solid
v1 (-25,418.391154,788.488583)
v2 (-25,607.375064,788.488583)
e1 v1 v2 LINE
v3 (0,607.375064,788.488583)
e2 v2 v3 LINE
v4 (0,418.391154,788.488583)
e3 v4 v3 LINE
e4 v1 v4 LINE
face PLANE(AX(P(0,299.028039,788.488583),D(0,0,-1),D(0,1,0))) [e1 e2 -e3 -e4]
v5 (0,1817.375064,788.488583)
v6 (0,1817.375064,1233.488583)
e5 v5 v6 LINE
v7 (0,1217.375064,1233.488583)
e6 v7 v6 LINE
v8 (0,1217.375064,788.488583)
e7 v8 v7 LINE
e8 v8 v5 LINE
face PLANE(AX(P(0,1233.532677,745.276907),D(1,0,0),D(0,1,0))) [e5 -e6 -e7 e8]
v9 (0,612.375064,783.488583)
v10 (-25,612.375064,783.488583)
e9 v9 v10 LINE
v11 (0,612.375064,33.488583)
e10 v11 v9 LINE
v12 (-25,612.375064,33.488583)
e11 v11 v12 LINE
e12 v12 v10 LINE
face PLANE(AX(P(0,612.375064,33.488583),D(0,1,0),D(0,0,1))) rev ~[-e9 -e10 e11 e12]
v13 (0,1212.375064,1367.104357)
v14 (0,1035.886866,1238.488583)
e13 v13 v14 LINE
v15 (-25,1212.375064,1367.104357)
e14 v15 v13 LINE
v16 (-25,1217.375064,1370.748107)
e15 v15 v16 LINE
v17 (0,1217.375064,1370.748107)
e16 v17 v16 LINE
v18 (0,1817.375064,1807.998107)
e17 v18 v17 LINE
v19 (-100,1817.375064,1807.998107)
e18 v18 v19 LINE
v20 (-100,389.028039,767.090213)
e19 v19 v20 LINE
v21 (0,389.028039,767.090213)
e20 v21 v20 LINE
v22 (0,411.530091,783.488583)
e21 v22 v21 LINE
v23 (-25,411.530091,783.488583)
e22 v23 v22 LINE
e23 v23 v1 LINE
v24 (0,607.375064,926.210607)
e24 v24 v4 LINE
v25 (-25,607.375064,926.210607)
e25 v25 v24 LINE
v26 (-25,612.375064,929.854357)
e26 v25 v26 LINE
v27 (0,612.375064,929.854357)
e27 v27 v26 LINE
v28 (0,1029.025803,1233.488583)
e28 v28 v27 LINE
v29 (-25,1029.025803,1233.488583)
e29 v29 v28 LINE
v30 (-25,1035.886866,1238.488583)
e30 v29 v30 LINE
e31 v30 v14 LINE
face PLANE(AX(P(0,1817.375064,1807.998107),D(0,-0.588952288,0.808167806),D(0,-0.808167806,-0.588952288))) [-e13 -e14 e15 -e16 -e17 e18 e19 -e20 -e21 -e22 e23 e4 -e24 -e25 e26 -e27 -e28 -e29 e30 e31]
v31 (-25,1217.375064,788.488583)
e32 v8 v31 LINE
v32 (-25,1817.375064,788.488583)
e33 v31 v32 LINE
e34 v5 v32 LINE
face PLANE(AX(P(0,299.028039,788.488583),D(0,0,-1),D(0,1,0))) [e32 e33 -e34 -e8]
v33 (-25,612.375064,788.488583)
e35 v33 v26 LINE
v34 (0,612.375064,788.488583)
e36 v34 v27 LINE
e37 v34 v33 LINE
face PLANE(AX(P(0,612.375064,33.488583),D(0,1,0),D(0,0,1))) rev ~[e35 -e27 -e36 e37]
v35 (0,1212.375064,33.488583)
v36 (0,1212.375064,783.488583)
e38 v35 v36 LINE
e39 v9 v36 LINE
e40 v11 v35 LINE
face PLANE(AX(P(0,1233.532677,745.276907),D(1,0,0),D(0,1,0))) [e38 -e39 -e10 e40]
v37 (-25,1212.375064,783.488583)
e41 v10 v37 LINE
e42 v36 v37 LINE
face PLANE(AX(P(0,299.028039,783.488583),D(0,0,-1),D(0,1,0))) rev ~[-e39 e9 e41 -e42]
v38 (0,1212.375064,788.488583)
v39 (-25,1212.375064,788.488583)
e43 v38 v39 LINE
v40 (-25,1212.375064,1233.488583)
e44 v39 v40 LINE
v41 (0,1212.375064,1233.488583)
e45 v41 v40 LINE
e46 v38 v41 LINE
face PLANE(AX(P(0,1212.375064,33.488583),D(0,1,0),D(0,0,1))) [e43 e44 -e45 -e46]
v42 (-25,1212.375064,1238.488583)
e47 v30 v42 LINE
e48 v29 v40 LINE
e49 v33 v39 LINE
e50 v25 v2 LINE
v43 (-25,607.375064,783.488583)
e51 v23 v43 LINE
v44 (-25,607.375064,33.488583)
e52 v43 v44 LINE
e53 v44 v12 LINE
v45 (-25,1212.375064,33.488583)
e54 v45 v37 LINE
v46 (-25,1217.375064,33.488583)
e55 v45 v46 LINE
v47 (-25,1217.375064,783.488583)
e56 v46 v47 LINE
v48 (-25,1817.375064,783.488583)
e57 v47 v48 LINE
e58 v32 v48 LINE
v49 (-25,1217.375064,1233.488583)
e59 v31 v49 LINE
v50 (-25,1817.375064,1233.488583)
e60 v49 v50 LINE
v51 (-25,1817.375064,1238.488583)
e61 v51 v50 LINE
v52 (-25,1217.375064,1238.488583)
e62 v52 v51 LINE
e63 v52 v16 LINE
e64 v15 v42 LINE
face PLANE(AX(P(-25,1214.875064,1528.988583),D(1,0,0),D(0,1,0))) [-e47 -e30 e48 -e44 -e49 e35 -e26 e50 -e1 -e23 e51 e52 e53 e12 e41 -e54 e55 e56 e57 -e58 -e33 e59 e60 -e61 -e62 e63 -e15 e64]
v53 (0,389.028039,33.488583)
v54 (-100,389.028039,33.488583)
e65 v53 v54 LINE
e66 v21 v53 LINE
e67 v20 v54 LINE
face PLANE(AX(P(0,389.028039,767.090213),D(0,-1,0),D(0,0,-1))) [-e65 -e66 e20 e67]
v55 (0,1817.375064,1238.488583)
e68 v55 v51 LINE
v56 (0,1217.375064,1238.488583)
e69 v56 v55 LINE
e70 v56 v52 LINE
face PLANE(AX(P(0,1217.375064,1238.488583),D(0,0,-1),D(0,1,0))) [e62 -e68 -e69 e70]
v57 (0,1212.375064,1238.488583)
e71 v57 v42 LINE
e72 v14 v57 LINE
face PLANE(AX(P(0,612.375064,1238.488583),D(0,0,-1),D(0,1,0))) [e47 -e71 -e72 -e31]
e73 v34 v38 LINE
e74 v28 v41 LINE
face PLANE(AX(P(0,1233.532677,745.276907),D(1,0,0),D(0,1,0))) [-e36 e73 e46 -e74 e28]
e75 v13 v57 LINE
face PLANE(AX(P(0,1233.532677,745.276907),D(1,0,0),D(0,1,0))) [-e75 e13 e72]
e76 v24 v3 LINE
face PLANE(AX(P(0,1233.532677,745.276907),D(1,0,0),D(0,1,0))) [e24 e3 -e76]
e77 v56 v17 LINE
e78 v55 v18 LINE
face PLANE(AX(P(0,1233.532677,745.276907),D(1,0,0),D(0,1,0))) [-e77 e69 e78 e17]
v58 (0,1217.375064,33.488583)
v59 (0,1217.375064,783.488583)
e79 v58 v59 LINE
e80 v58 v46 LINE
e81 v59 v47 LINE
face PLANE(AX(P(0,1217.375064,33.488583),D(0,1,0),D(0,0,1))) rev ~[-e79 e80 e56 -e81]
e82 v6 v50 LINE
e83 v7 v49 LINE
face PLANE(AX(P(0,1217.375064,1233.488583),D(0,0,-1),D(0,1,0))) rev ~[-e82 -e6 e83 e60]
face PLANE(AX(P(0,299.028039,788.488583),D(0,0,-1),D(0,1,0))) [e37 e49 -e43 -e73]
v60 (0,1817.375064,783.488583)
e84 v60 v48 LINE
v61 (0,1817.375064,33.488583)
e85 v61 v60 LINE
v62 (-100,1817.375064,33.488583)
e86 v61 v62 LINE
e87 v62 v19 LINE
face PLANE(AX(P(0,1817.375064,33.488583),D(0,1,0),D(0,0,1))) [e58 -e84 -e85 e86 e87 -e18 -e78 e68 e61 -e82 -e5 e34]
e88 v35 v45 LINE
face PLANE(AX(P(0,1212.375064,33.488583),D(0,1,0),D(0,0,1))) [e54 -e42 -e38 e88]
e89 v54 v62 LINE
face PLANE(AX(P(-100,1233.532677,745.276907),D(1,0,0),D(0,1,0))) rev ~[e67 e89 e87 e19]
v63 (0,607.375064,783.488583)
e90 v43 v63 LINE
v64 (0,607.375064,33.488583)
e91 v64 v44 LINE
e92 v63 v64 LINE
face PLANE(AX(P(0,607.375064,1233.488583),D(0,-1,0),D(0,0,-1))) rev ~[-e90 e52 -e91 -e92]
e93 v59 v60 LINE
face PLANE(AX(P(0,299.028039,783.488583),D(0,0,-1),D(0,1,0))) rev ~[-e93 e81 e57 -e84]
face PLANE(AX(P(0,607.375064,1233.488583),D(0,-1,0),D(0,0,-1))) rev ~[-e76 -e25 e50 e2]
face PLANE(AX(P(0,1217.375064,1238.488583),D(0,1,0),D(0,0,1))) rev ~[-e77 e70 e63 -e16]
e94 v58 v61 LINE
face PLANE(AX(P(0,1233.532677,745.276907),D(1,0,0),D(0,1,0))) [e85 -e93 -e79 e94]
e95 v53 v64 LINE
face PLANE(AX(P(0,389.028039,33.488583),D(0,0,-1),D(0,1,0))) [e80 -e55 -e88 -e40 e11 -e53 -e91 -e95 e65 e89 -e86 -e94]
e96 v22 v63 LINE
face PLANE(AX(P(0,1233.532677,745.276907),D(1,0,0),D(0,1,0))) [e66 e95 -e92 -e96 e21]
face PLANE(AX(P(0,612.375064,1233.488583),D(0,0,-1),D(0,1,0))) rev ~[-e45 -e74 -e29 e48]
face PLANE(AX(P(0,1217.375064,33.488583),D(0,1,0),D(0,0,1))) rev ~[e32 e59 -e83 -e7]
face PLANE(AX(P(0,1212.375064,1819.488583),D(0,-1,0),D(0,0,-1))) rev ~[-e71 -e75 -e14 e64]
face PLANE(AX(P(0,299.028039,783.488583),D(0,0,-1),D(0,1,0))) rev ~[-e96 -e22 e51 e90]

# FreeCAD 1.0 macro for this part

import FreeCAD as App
import Part
import Sketcher

V = App.Vector
Q = App.Units.Quantity

doc = App.newDocument("Part")
body = doc.addObject("PartDesign::Body", "Body")

sketch1 = body.newObject("Sketcher::SketchObject", "Sketch")
sketch1.AttachmentSupport = (doc.getObject("YZ_Plane"), [""])
sketch1.MapMode = "FlatFace"
sketch1.addGeometry([
    Part.LineSegment(V(389, 767, 0), V(389, 33, 0)),
    Part.LineSegment(V(389, 33, 0), V(1817, 33, 0)),
    Part.LineSegment(V(1817, 33, 0), V(1817, 1808, 0)),
    Part.LineSegment(V(1817, 1808, 0), V(389, 767, 0)),
], False)
sketch1.addConstraint([
    Sketcher.Constraint("Coincident", 0, 2, 1, 1),
    Sketcher.Constraint("Coincident", 1, 2, 2, 1),
    Sketcher.Constraint("Coincident", 2, 2, 3, 1),
    Sketcher.Constraint("Coincident", 3, 2, 0, 1),
    Sketcher.Constraint("Vertical", 0),
    Sketcher.Constraint("Horizontal", 1),
    Sketcher.Constraint("Vertical", 2),
    Sketcher.Constraint("DistanceY", 0, 2, 0, 1, Q("733.60163 mm")),
    Sketcher.Constraint("DistanceX", 1, 1, 1, 2, Q("1428.347025 mm")),
    Sketcher.Constraint("DistanceY", 2, 1, 2, 2, Q("1774.509524 mm")),
    Sketcher.Constraint("DistanceX", -1, 1, 0, 2, Q("389.028039 mm")),
    Sketcher.Constraint("DistanceY", -1, 1, 0, 2, Q("33.488583 mm")),
])
pad1 = body.newObject("PartDesign::Pad", "Pad")
pad1.Profile = sketch1
pad1.Length = 100
pad1.Reversed = True

sketch2 = body.newObject("Sketcher::SketchObject", "Sketch001")
sketch2.AttachmentSupport = (doc.getObject("YZ_Plane"), [""])
sketch2.MapMode = "FlatFace"
sketch2.addGeometry([
    Part.LineSegment(V(1212, 1819, 0), V(1212, 1238, 0)),
    Part.LineSegment(V(1212, 1238, 0), V(612, 1238, 0)),
    Part.LineSegment(V(612, 1238, 0), V(612, 1819, 0)),
    Part.LineSegment(V(612, 1819, 0), V(607, 1819, 0)),
    Part.LineSegment(V(607, 1819, 0), V(607, 1238, 0)),
    Part.LineSegment(V(607, 1238, 0), V(0, 1238, 0)),
    Part.LineSegment(V(0, 1238, 0), V(0, 1233, 0)),
    Part.LineSegment(V(0, 1233, 0), V(607, 1233, 0)),
    Part.LineSegment(V(607, 1233, 0), V(607, 33, 0)),
    Part.LineSegment(V(607, 33, 0), V(612, 33, 0)),
    Part.LineSegment(V(612, 33, 0), V(612, 1233, 0)),
    Part.LineSegment(V(612, 1233, 0), V(1212, 1233, 0)),
    Part.LineSegment(V(1212, 1233, 0), V(1212, 33, 0)),
    Part.LineSegment(V(1212, 33, 0), V(1217, 33, 0)),
    Part.LineSegment(V(1217, 33, 0), V(1217, 1233, 0)),
    Part.LineSegment(V(1217, 1233, 0), V(2854, 1233, 0)),
    Part.LineSegment(V(2854, 1233, 0), V(2854, 1238, 0)),
    Part.LineSegment(V(2854, 1238, 0), V(1217, 1238, 0)),
    Part.LineSegment(V(1217, 1238, 0), V(1217, 1819, 0)),
    Part.LineSegment(V(1217, 1819, 0), V(1212, 1819, 0)),
], False)
sketch2.addConstraint([
    Sketcher.Constraint("Coincident", 0, 2, 1, 1),
    Sketcher.Constraint("Coincident", 1, 2, 2, 1),
    Sketcher.Constraint("Coincident", 2, 2, 3, 1),
    Sketcher.Constraint("Coincident", 3, 2, 4, 1),
    Sketcher.Constraint("Coincident", 4, 2, 5, 1),
    Sketcher.Constraint("Coincident", 5, 2, 6, 1),
    Sketcher.Constraint("Coincident", 6, 2, 7, 1),
    Sketcher.Constraint("Coincident", 7, 2, 8, 1),
    Sketcher.Constraint("Coincident", 8, 2, 9, 1),
    Sketcher.Constraint("Coincident", 9, 2, 10, 1),
    Sketcher.Constraint("Coincident", 10, 2, 11, 1),
    Sketcher.Constraint("Coincident", 11, 2, 12, 1),
    Sketcher.Constraint("Coincident", 12, 2, 13, 1),
    Sketcher.Constraint("Coincident", 13, 2, 14, 1),
    Sketcher.Constraint("Coincident", 14, 2, 15, 1),
    Sketcher.Constraint("Coincident", 15, 2, 16, 1),
    Sketcher.Constraint("Coincident", 16, 2, 17, 1),
    Sketcher.Constraint("Coincident", 17, 2, 18, 1),
    Sketcher.Constraint("Coincident", 18, 2, 19, 1),
    Sketcher.Constraint("Coincident", 19, 2, 0, 1),
    Sketcher.Constraint("Vertical", 0),
    Sketcher.Constraint("Horizontal", 1),
    Sketcher.Constraint("Vertical", 2),
    Sketcher.Constraint("Horizontal", 3),
    Sketcher.Constraint("Vertical", 4),
    Sketcher.Constraint("Horizontal", 5),
    Sketcher.Constraint("Vertical", 6),
    Sketcher.Constraint("Horizontal", 7),
    Sketcher.Constraint("Vertical", 8),
    Sketcher.Constraint("Horizontal", 9),
    Sketcher.Constraint("Vertical", 10),
    Sketcher.Constraint("Horizontal", 11),
    Sketcher.Constraint("Vertical", 12),
    Sketcher.Constraint("Horizontal", 13),
    Sketcher.Constraint("Vertical", 14),
    Sketcher.Constraint("Horizontal", 15),
    Sketcher.Constraint("Vertical", 16),
    Sketcher.Constraint("Horizontal", 17),
    Sketcher.Constraint("Vertical", 18),
    Sketcher.Constraint("Horizontal", 19),
    Sketcher.Constraint("PointOnObject", 5, 2, -2),
    Sketcher.Constraint("Horizontal", 1, 2, 4, 2),
    Sketcher.Constraint("Horizontal", 7, 2, 10, 2),
    Sketcher.Constraint("Horizontal", 9, 2, 12, 2),
    Sketcher.Constraint("Horizontal", 11, 2, 14, 2),
    Sketcher.Constraint("Horizontal", 5, 2, 16, 2),
    Sketcher.Constraint("Horizontal", 3, 2, 18, 2),
    Sketcher.Constraint("Vertical", 4, 2, 7, 2),
    Sketcher.Constraint("Vertical", 2, 2, 9, 2),
    Sketcher.Constraint("Vertical", 0, 2, 11, 2),
    Sketcher.Constraint("Vertical", 14, 2, 17, 2),
    Sketcher.Constraint("Equal", 9, 13),
    Sketcher.Constraint("Equal", 19, 6),
    Sketcher.Constraint("DistanceX", 1, 2, 1, 1, Q("600 mm")),
    Sketcher.Constraint("DistanceX", 3, 2, 3, 1, Q("5 mm")),
    Sketcher.Constraint("DistanceY", 0, 2, 0, 1, Q("581 mm")),
    Sketcher.Constraint("DistanceY", 8, 2, 8, 1, Q("1200 mm")),
    Sketcher.Constraint("DistanceX", 15, 1, 15, 2, Q("1636.788821 mm")),
    Sketcher.Constraint("DistanceX", 5, 2, 5, 1, Q("607.375064 mm")),
    Sketcher.Constraint("DistanceY", -1, 1, 0, 2, Q("1238.488583 mm")),
])
pocket1 = body.newObject("PartDesign::Pocket", "Pocket")
pocket1.Profile = sketch2
pocket1.Length = 25

sketch3 = body.newObject("Sketcher::SketchObject", "Sketch002")
sketch3.AttachmentSupport = (doc.getObject("YZ_Plane"), [""])
sketch3.MapMode = "FlatFace"
sketch3.addGeometry([
    Part.LineSegment(V(299, 788, 0), V(299, 783, 0)),
    Part.LineSegment(V(299, 783, 0), V(2949, 783, 0)),
    Part.LineSegment(V(2949, 783, 0), V(2949, 788, 0)),
    Part.LineSegment(V(2949, 788, 0), V(299, 788, 0)),
], False)
sketch3.addConstraint([
    Sketcher.Constraint("Coincident", 0, 2, 1, 1),
    Sketcher.Constraint("Coincident", 1, 2, 2, 1),
    Sketcher.Constraint("Coincident", 2, 2, 3, 1),
    Sketcher.Constraint("Coincident", 3, 2, 0, 1),
    Sketcher.Constraint("Vertical", 0),
    Sketcher.Constraint("Horizontal", 1),
    Sketcher.Constraint("Vertical", 2),
    Sketcher.Constraint("Horizontal", 3),
    Sketcher.Constraint("DistanceX", 1, 1, 1, 2, Q("2650 mm")),
    Sketcher.Constraint("DistanceY", 0, 2, 0, 1, Q("5 mm")),
    Sketcher.Constraint("DistanceX", -1, 1, 0, 2, Q("299.028039 mm")),
    Sketcher.Constraint("DistanceY", -1, 1, 0, 2, Q("783.488583 mm")),
])
pocket2 = body.newObject("PartDesign::Pocket", "Pocket001")
pocket2.Profile = sketch3
pocket2.Length = 25

doc.recompute()
